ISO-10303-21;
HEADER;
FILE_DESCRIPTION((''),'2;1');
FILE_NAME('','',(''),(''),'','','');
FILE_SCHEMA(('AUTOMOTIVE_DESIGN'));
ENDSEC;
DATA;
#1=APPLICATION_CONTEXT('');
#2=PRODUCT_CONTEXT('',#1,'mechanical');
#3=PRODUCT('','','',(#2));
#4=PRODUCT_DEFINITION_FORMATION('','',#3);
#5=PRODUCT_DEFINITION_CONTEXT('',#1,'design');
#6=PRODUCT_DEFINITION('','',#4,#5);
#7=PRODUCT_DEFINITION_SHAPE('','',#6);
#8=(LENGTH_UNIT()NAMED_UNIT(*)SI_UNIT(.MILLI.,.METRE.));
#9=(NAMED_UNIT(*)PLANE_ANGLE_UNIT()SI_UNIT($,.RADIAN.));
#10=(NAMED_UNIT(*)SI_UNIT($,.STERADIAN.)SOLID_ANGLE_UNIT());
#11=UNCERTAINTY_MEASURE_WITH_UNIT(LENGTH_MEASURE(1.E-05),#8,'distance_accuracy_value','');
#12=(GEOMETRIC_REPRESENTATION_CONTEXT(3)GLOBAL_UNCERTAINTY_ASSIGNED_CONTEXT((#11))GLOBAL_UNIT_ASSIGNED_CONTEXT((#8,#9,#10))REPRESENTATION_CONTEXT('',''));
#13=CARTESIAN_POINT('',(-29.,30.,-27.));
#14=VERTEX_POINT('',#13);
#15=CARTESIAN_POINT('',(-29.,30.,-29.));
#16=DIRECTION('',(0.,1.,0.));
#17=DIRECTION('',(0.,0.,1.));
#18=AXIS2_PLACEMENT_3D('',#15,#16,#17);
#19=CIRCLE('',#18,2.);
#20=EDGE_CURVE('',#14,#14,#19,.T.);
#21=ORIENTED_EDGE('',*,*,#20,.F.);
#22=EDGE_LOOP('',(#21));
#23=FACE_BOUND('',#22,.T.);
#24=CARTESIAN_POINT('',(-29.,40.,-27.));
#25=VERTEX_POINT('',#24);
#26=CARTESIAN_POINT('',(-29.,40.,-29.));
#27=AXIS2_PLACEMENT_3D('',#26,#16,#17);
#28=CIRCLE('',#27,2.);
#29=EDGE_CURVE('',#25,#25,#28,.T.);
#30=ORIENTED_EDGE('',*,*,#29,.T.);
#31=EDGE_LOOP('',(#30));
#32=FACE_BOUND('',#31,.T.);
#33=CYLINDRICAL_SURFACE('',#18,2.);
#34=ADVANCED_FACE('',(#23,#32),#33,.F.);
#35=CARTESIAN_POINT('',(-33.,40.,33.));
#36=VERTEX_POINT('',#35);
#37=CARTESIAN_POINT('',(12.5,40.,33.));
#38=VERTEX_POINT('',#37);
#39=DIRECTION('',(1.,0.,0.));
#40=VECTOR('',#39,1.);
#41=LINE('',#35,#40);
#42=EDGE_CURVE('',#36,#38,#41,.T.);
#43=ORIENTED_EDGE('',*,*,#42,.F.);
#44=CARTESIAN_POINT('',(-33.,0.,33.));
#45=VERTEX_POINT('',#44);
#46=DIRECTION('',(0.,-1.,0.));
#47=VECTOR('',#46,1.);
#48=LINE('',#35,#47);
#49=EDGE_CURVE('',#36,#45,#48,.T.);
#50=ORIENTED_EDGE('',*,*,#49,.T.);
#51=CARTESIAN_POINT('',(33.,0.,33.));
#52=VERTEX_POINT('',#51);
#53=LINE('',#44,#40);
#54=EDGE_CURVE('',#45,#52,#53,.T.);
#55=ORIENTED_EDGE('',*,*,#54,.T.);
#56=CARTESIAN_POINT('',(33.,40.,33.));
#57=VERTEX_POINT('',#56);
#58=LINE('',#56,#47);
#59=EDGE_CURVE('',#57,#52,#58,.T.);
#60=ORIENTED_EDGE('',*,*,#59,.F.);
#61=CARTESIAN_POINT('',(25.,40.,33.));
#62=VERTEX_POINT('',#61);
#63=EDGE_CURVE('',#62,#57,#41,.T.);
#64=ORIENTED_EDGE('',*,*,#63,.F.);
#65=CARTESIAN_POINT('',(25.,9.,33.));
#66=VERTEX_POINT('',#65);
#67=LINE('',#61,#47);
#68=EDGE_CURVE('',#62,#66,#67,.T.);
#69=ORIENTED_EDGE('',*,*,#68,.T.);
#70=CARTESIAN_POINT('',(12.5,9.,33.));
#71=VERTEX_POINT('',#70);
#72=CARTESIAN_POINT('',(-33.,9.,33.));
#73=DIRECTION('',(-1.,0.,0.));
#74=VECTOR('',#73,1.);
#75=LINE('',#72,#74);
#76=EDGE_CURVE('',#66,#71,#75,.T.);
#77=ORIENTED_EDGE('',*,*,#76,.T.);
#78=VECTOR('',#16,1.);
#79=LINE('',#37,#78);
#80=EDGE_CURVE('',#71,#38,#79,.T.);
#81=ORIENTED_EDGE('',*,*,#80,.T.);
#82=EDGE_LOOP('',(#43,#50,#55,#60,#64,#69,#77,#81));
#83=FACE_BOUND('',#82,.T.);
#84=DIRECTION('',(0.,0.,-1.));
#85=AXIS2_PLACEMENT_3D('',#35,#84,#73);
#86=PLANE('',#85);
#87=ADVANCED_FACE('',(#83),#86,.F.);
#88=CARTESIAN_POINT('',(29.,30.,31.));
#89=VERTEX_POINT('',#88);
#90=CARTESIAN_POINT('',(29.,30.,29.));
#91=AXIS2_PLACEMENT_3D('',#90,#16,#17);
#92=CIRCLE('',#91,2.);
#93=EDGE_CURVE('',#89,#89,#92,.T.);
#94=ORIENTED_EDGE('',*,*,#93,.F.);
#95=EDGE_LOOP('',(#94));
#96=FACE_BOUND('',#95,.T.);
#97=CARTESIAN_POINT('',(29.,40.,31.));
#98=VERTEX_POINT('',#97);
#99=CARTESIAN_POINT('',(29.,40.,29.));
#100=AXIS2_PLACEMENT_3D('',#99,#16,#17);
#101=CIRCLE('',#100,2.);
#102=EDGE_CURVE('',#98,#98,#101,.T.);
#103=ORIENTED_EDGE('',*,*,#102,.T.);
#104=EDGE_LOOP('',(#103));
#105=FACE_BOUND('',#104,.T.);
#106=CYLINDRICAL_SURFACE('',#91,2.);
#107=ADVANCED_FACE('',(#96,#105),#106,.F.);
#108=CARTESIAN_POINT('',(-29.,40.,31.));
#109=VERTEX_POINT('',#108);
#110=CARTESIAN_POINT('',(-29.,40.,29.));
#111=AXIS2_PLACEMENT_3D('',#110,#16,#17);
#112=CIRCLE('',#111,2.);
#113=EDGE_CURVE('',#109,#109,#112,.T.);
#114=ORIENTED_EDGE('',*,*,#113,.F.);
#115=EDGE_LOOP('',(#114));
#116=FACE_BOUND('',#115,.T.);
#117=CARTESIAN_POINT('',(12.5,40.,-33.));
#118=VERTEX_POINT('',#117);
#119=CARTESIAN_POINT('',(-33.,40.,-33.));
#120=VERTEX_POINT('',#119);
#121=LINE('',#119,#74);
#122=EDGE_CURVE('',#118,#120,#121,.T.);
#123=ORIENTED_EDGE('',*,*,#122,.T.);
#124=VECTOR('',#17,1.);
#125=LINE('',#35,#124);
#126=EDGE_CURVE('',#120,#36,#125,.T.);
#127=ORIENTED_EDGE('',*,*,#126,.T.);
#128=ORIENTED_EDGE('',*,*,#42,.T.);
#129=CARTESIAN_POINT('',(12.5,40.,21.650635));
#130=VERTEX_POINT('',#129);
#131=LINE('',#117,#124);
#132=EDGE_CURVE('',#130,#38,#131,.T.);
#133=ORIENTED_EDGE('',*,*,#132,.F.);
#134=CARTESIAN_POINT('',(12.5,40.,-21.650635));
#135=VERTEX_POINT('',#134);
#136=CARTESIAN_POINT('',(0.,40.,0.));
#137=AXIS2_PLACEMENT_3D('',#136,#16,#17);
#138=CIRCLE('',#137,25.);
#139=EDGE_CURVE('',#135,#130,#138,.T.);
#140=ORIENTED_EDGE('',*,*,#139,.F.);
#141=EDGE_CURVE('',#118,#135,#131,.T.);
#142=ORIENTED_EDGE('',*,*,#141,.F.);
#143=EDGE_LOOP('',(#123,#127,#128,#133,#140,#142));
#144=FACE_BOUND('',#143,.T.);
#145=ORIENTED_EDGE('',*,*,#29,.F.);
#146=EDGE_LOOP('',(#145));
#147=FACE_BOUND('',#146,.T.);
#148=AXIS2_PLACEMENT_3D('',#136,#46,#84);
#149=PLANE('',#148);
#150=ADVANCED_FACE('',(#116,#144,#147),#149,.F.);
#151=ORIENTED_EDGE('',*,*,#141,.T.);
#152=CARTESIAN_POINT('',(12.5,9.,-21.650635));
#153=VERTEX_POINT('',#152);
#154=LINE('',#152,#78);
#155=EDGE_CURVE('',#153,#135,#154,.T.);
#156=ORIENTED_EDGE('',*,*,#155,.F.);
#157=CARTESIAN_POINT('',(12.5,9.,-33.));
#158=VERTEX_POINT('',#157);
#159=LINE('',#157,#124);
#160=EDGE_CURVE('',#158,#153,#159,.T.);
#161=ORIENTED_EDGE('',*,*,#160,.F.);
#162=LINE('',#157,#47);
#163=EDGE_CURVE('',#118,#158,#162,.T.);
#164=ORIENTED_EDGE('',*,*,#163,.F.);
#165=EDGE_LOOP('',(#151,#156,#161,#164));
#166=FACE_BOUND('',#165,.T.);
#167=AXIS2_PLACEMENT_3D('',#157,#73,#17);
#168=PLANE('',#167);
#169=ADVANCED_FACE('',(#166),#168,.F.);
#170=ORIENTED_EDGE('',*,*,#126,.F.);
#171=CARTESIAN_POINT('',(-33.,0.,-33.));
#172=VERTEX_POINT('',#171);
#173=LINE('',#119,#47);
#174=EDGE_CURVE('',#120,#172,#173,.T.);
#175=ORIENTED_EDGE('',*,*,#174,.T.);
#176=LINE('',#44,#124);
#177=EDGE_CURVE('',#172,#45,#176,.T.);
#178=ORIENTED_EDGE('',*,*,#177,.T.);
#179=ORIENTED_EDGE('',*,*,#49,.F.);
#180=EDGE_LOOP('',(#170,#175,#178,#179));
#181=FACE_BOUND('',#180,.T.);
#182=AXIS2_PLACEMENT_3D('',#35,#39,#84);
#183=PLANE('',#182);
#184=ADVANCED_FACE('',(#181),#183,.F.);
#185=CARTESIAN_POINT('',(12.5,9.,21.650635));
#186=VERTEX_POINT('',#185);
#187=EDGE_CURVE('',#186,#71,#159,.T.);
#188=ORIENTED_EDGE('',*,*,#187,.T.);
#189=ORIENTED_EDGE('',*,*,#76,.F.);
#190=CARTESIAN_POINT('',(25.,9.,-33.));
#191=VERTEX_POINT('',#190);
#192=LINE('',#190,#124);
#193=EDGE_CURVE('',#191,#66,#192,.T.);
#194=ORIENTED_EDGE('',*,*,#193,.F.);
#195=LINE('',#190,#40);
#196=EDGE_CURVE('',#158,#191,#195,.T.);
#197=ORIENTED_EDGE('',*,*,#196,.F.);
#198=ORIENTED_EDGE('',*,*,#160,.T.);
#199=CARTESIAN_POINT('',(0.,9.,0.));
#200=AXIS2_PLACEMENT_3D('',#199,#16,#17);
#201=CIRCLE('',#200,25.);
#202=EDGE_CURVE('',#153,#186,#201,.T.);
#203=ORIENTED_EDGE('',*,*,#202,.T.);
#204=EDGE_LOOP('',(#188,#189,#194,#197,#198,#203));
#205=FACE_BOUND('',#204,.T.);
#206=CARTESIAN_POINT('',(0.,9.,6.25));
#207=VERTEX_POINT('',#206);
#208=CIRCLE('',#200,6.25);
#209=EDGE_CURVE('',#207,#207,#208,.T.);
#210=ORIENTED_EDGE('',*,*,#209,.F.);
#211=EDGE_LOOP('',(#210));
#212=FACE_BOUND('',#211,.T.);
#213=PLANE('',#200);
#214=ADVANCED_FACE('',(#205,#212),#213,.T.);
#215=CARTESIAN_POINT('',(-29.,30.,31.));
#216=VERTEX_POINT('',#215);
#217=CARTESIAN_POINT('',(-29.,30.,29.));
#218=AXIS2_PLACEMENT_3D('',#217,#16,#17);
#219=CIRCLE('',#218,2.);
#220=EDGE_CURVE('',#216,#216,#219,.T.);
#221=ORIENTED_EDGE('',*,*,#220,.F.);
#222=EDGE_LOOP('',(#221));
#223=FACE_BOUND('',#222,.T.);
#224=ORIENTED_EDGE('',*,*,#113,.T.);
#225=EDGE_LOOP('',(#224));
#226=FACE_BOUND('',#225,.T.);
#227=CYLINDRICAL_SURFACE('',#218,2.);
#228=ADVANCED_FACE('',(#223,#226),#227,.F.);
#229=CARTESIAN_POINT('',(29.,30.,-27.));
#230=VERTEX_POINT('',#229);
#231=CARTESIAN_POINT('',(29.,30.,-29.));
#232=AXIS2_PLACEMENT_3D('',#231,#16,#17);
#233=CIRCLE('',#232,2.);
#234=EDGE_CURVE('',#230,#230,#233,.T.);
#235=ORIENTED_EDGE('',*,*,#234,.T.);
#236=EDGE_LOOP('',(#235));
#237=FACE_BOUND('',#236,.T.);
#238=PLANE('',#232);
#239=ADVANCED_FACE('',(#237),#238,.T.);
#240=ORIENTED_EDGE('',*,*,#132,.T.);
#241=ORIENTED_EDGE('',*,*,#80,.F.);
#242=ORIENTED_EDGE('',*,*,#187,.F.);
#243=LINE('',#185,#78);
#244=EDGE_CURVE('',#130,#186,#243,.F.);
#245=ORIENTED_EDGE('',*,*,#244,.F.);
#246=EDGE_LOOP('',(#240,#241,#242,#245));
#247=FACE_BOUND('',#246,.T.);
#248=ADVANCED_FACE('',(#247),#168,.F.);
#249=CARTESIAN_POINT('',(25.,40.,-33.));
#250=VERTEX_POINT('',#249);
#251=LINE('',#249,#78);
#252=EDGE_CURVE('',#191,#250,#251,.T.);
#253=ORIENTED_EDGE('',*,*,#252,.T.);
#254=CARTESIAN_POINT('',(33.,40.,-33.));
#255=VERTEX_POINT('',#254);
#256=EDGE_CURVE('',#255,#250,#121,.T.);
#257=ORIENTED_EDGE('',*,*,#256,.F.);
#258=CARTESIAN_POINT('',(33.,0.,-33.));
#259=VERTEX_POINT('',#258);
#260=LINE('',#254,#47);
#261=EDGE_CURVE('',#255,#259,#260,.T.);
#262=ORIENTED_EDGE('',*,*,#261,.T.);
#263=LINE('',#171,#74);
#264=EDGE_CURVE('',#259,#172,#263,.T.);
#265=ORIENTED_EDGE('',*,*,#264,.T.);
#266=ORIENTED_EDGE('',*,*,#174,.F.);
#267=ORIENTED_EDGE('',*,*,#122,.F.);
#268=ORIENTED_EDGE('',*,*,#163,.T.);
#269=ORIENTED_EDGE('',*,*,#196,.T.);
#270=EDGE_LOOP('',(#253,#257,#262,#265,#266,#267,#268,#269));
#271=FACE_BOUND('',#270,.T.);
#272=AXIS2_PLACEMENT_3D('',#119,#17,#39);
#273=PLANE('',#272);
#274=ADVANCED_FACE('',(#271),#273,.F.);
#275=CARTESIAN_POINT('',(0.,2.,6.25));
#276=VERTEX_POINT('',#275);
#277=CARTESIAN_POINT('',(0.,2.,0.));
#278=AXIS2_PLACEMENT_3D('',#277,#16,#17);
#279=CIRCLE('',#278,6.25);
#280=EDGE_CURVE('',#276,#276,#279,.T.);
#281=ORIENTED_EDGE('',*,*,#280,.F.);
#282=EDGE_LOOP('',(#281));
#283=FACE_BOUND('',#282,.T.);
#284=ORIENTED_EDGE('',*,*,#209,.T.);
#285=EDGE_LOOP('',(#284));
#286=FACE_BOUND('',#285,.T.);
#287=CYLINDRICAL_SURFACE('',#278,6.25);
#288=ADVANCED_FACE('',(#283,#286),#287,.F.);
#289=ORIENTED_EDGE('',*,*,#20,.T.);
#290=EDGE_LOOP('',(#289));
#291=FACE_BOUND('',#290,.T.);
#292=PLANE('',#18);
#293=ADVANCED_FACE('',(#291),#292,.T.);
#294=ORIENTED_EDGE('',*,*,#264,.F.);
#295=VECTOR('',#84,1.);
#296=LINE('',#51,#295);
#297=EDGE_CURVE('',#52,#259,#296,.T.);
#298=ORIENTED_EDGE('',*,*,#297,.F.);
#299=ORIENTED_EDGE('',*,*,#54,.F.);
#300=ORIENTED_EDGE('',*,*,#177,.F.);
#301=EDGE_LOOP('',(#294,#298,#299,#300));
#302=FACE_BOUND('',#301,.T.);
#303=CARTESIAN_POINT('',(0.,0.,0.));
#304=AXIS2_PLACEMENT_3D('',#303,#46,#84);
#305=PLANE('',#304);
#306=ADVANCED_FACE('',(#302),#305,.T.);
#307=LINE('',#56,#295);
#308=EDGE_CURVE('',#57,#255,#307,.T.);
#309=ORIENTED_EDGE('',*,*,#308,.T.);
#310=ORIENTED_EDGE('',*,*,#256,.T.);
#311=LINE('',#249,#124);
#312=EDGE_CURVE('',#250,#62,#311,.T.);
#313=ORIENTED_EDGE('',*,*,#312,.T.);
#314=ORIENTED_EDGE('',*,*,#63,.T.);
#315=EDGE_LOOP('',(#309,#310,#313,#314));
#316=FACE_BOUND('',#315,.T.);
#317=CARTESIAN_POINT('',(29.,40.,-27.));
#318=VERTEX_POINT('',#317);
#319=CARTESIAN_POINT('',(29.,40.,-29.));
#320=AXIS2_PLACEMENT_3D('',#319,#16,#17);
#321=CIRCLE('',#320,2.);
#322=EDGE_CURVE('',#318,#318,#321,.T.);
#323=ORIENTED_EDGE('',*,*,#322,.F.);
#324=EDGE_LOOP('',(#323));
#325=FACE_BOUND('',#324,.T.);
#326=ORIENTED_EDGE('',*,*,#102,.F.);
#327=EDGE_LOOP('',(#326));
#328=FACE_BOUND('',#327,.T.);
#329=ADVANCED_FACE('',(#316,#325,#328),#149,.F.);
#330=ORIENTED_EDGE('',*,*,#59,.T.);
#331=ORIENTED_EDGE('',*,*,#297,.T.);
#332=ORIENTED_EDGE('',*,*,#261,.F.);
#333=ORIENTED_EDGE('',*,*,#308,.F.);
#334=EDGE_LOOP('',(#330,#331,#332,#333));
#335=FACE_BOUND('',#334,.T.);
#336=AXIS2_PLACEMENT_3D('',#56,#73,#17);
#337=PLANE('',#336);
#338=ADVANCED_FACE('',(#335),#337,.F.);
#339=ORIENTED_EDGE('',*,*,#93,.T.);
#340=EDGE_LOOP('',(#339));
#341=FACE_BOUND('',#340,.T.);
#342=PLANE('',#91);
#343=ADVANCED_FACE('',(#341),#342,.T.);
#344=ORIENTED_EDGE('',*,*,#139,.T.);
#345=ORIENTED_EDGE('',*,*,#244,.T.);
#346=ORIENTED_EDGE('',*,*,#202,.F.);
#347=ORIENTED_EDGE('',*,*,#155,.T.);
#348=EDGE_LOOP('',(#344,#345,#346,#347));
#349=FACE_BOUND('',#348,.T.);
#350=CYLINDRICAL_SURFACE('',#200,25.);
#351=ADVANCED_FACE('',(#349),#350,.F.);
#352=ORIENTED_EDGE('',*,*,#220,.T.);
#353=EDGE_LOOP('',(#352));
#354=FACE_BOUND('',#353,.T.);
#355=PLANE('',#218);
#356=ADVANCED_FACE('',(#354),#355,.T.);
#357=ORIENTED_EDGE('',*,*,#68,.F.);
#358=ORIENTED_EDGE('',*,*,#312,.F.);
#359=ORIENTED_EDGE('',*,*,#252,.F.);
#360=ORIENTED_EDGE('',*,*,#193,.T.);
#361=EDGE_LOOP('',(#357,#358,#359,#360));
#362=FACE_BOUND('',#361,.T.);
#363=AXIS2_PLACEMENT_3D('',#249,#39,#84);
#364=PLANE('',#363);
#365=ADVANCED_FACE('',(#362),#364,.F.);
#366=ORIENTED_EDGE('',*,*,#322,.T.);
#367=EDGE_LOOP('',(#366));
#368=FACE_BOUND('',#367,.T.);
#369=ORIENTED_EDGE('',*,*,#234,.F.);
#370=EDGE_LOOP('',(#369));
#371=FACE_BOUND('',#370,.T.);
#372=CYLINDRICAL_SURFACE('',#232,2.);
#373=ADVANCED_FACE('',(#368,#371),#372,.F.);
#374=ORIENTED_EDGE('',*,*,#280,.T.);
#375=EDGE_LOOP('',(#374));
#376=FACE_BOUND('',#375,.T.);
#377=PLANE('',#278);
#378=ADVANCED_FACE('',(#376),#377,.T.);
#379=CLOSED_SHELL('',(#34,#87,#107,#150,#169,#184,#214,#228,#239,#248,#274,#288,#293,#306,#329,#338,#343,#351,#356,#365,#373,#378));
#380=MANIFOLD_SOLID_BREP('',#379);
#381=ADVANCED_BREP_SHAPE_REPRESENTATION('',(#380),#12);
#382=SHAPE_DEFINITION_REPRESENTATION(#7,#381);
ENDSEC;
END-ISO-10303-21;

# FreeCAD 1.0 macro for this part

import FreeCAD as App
import Part
import Sketcher
Q = App.Units.Quantity

doc = App.newDocument("Part")
body = doc.addObject("PartDesign::Body", "Body")

# Sketch on XZ plane
sketch1 = doc.addObject("Sketcher::SketchObject", "Sketch")
body.addObject(sketch1)
sketch1.AttachmentSupport = (doc.XZ_Plane, [""])
sketch1.MapMode = "FlatFace"
sketch1.addGeometry([
    Part.LineSegment(App.Vector(-33, -33, 0), App.Vector(-33, 33, 0)),
    Part.LineSegment(App.Vector(-33, 33, 0), App.Vector(33, 33, 0)),
    Part.LineSegment(App.Vector(33, 33, 0), App.Vector(33, -33, 0)),
    Part.LineSegment(App.Vector(33, -33, 0), App.Vector(-33, -33, 0)),
], False)
sketch1.addConstraint([
    Sketcher.Constraint("Coincident", 0, 2, 1, 1),
    Sketcher.Constraint("Coincident", 1, 2, 2, 1),
    Sketcher.Constraint("Coincident", 2, 2, 3, 1),
    Sketcher.Constraint("Coincident", 3, 2, 0, 1),
    Sketcher.Constraint("Vertical", 0),
    Sketcher.Constraint("Horizontal", 1),
    Sketcher.Constraint("Vertical", 2),
    Sketcher.Constraint("Horizontal", 3),
    Sketcher.Constraint("Symmetric", 0, 2, 2, 2, -1, 1),
    Sketcher.Constraint("Equal", 3, 0),
    Sketcher.Constraint("DistanceX", 1, 1, 1, 2, Q("66 mm")),
])
pad1 = doc.addObject("PartDesign::Pad", "Pad")
body.addObject(pad1)
pad1.Profile = sketch1
pad1.Length = 40
pad1.Reversed = True

# Sketch on XZ plane
sketch2 = doc.addObject("Sketcher::SketchObject", "Sketch001")
body.addObject(sketch2)
sketch2.AttachmentSupport = (doc.XZ_Plane, [""])
sketch2.MapMode = "FlatFace"
sketch2.AttachmentOffset = App.Placement(App.Vector(0, 0, -40), App.Rotation())
sketch2.addGeometry(Part.Circle(App.Vector(0, 0, 0), App.Vector(0, 0, 1), 25), False)
sketch2.addConstraint([
    Sketcher.Constraint("Coincident", 0, 3, -1, 1),
    Sketcher.Constraint("Diameter", 0, Q("50 mm")),
])
pocket1 = doc.addObject("PartDesign::Pocket", "Pocket")
body.addObject(pocket1)
pocket1.Profile = sketch2
pocket1.Length = 31
pocket1.Reversed = True

# Sketch on XZ plane
sketch3 = doc.addObject("Sketcher::SketchObject", "Sketch002")
body.addObject(sketch3)
sketch3.AttachmentSupport = (doc.XZ_Plane, [""])
sketch3.MapMode = "FlatFace"
sketch3.AttachmentOffset = App.Placement(App.Vector(0, 0, -9), App.Rotation())
sketch3.addGeometry(Part.Circle(App.Vector(0, 0, 0), App.Vector(0, 0, 1), 6), False)
sketch3.addConstraint([
    Sketcher.Constraint("Coincident", 0, 3, -1, 1),
    Sketcher.Constraint("Diameter", 0, Q("12.5 mm")),
])
pocket2 = doc.addObject("PartDesign::Pocket", "Pocket001")
body.addObject(pocket2)
pocket2.Profile = sketch3
pocket2.Length = 7
pocket2.Reversed = True

# Sketch on XY plane
sketch4 = doc.addObject("Sketcher::SketchObject", "Sketch003")
body.addObject(sketch4)
sketch4.AttachmentSupport = (doc.XY_Plane, [""])
sketch4.MapMode = "FlatFace"
sketch4.AttachmentOffset = App.Placement(App.Vector(0, 0, 33), App.Rotation())
sketch4.addGeometry([
    Part.LineSegment(App.Vector(12, 40, 0), App.Vector(12, 9, 0)),
    Part.LineSegment(App.Vector(12, 9, 0), App.Vector(25, 9, 0)),
    Part.LineSegment(App.Vector(25, 9, 0), App.Vector(25, 40, 0)),
    Part.LineSegment(App.Vector(25, 40, 0), App.Vector(12, 40, 0)),
], False)
sketch4.addConstraint([
    Sketcher.Constraint("Coincident", 0, 2, 1, 1),
    Sketcher.Constraint("Coincident", 1, 2, 2, 1),
    Sketcher.Constraint("Coincident", 2, 2, 3, 1),
    Sketcher.Constraint("Coincident", 3, 2, 0, 1),
    Sketcher.Constraint("Vertical", 0),
    Sketcher.Constraint("Horizontal", 1),
    Sketcher.Constraint("Vertical", 2),
    Sketcher.Constraint("Horizontal", 3),
    Sketcher.Constraint("DistanceY", 0, 2, 0, 1, Q("31 mm")),
    Sketcher.Constraint("DistanceX", 1, 1, 1, 2, Q("12.5 mm")),
    Sketcher.Constraint("DistanceY", -1, 1, 0, 2, Q("9 mm")),
    Sketcher.Constraint("DistanceX", -1, 1, 1, 2, Q("25 mm")),
])
pocket3 = doc.addObject("PartDesign::Pocket", "Pocket002")
body.addObject(pocket3)
pocket3.Profile = sketch4
pocket3.Type = "ThroughAll"
pocket3.Midplane = True

# Sketch on XZ plane
sketch5 = doc.addObject("Sketcher::SketchObject", "Sketch004")
body.addObject(sketch5)
sketch5.AttachmentSupport = (doc.XZ_Plane, [""])
sketch5.MapMode = "FlatFace"
sketch5.AttachmentOffset = App.Placement(App.Vector(0, 0, -40), App.Rotation())
sketch5.addGeometry([
    Part.Circle(App.Vector(-29, 29, 0), App.Vector(0, 0, 1), 2),
    Part.Circle(App.Vector(-29, -29, 0), App.Vector(0, 0, 1), 2),
    Part.Circle(App.Vector(29, -29, 0), App.Vector(0, 0, 1), 2),
    Part.Circle(App.Vector(29, 29, 0), App.Vector(0, 0, 1), 2),
], False)
sketch5.addConstraint([
    Sketcher.Constraint("Equal", 0, 1),
    Sketcher.Constraint("Equal", 1, 2),
    Sketcher.Constraint("Equal", 2, 3),
    Sketcher.Constraint("Symmetric", 0, 3, 2, 3, -1, 1),
    Sketcher.Constraint("Symmetric", 1, 3, 3, 3, -1, 1),
    Sketcher.Constraint("Symmetric", 1, 3, 2, 3, -2),
    Sketcher.Constraint("Diameter", 0, Q("4 mm")),
    Sketcher.Constraint("DistanceX", 0, 3, -1, 1, Q("29 mm")),
    Sketcher.Constraint("DistanceY", -1, 1, 0, 3, Q("29 mm")),
])
pocket4 = doc.addObject("PartDesign::Pocket", "Pocket003")
body.addObject(pocket4)
pocket4.Profile = sketch5
pocket4.Length = 10
pocket4.Reversed = True

doc.recompute()
